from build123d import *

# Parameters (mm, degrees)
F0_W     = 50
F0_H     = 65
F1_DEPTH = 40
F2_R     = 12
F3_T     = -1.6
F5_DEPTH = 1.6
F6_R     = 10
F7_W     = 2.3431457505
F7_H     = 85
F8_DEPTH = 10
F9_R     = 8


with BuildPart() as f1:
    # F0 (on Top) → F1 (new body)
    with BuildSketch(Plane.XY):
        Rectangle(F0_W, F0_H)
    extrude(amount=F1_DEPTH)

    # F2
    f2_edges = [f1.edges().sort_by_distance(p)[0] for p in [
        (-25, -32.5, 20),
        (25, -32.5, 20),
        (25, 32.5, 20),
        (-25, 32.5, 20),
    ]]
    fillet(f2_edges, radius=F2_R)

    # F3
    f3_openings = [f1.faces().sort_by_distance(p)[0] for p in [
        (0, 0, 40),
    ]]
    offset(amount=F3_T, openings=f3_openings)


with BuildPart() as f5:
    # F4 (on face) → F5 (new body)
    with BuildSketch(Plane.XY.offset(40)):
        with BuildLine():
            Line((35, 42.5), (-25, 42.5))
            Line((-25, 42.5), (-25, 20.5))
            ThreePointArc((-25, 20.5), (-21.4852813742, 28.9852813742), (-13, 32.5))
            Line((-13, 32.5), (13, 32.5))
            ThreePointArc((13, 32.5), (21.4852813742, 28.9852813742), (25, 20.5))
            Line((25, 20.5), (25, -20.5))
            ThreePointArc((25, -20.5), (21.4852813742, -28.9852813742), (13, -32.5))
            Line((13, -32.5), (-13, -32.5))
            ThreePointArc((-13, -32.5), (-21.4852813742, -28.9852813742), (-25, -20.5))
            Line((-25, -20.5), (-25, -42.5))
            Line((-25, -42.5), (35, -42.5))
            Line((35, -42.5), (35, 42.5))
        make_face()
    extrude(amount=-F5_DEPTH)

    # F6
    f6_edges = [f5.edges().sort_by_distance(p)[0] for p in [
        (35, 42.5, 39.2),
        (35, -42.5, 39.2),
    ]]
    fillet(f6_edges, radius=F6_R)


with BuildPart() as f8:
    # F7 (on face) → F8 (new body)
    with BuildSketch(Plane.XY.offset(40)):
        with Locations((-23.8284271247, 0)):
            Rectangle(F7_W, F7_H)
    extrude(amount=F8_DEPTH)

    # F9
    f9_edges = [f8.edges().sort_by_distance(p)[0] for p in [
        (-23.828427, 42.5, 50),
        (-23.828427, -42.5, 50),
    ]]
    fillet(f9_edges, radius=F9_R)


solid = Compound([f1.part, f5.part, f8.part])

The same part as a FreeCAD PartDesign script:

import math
import FreeCAD as App
import Part
import Sketcher
Q = App.Units.Quantity


def edges_at(feature, points):
    """Names of the edges that pass closest to the given points."""
    edges = feature.Shape.Edges
    near = lambda p: min(range(len(edges)), key=lambda i: edges[i].distToShape(Part.Vertex(*p))[0])
    return sorted({f"Edge{near(p) + 1}" for p in points})


def faces_at(feature, points):
    """Names of the faces that lie closest to the given points."""
    faces = feature.Shape.Faces
    near = lambda p: min(range(len(faces)), key=lambda i: faces[i].distToShape(Part.Vertex(*p))[0])
    return sorted({f"Face{near(p) + 1}" for p in points})


def add_polygon(sketch, points):
    """Adds a closed chain of lines whose ends are joined by coincident constraints."""
    first, n = sketch.GeometryCount, len(points)
    for a, b in zip(points, points[1:] + points[:1]):
        sketch.addGeometry(Part.LineSegment(App.Vector(*a, 0), App.Vector(*b, 0)), False)
    for i in range(n):
        sketch.addConstraint(Sketcher.Constraint("Coincident", first + i, 2, first + (i + 1) % n, 1))

doc = App.newDocument("Part")
body = doc.addObject("PartDesign::Body", "Body")

# Sketch on XY plane
sketch1 = body.newObject("Sketcher::SketchObject", "Sketch")
sketch1.AttachmentSupport = (doc.getObject("XY_Plane"), [""])
sketch1.MapMode = "FlatFace"
add_polygon(sketch1, [(-25, 32), (-25, -32), (25, -32), (25, 32)])  # lines 0-3
sketch1.addConstraint(Sketcher.Constraint("Vertical", 0))
sketch1.addConstraint(Sketcher.Constraint("Horizontal", 1))
sketch1.addConstraint(Sketcher.Constraint("Vertical", 2))
sketch1.addConstraint(Sketcher.Constraint("Horizontal", 3))
sketch1.addConstraint(Sketcher.Constraint("Symmetric", 0, 2, 2, 2, -1, 1))
sketch1.addConstraint(Sketcher.Constraint("DistanceX", 1, 1, 1, 2, Q("50 mm")))
sketch1.addConstraint(Sketcher.Constraint("DistanceY", 0, 2, 0, 1, Q("65 mm")))
pad1 = body.newObject("PartDesign::Pad", "Pad")
pad1.Profile = sketch1
pad1.Length = 40
doc.recompute()

fillet = body.newObject("PartDesign::Fillet", "Fillet")
fillet.Base = (pad1, edges_at(pad1, [
    (-25, -32.5, 20),
    (25, -32.5, 20),
    (25, 32.5, 20),
    (-25, 32.5, 20),
]))
fillet.Radius = 12
doc.recompute()

thickness = body.newObject("PartDesign::Thickness", "Thickness")
thickness.Base = (fillet, faces_at(fillet, [(0, 0, 40)]))
thickness.Value = 1.6
thickness.Reversed = True
thickness.Join = "Arc"
body2 = doc.addObject("PartDesign::Body", "Body001")

# Sketch on XY plane
sketch2 = body2.newObject("Sketcher::SketchObject", "Sketch001")
sketch2.AttachmentSupport = (doc.getObject("XY_Plane001"), [""])
sketch2.MapMode = "FlatFace"
sketch2.AttachmentOffset = App.Placement(App.Vector(0, 0, 40), App.Rotation())
sketch2.addGeometry(Part.LineSegment(App.Vector(35, 42, 0), App.Vector(-25, 42, 0)), False)
sketch2.addGeometry(Part.LineSegment(App.Vector(-25, 42, 0), App.Vector(-25, 20, 0)), False)
sketch2.addGeometry(Part.ArcOfCircle(Part.Circle(App.Vector(-13, 20, 0), App.Vector(0, 0, 1), 12), math.radians(90), math.radians(180)), False)
sketch2.addGeometry(Part.LineSegment(App.Vector(-13, 32, 0), App.Vector(13, 32, 0)), False)
sketch2.addGeometry(Part.ArcOfCircle(Part.Circle(App.Vector(13, 20, 0), App.Vector(0, 0, 1), 12), math.radians(0), math.radians(90)), False)
sketch2.addGeometry(Part.LineSegment(App.Vector(25, 20, 0), App.Vector(25, -20, 0)), False)
sketch2.addGeometry(Part.ArcOfCircle(Part.Circle(App.Vector(13, -20, 0), App.Vector(0, 0, 1), 12), math.radians(-90), math.radians(0)), False)
sketch2.addGeometry(Part.LineSegment(App.Vector(13, -32, 0), App.Vector(-13, -32, 0)), False)
sketch2.addGeometry(Part.ArcOfCircle(Part.Circle(App.Vector(-13, -20, 0), App.Vector(0, 0, 1), 12), math.radians(180), math.radians(270)), False)
sketch2.addGeometry(Part.LineSegment(App.Vector(-25, -20, 0), App.Vector(-25, -42, 0)), False)
sketch2.addGeometry(Part.LineSegment(App.Vector(-25, -42, 0), App.Vector(35, -42, 0)), False)
sketch2.addGeometry(Part.LineSegment(App.Vector(35, -42, 0), App.Vector(35, 42, 0)), False)
sketch2.addConstraint(Sketcher.Constraint("Coincident", 0, 2, 1, 1))
sketch2.addConstraint(Sketcher.Constraint("Tangent", 1, 2, 2, 2))
sketch2.addConstraint(Sketcher.Constraint("Tangent", 2, 1, 3, 1))
sketch2.addConstraint(Sketcher.Constraint("Tangent", 3, 2, 4, 2))
sketch2.addConstraint(Sketcher.Constraint("Tangent", 4, 1, 5, 1))
sketch2.addConstraint(Sketcher.Constraint("Tangent", 5, 2, 6, 2))
sketch2.addConstraint(Sketcher.Constraint("Tangent", 6, 1, 7, 1))
sketch2.addConstraint(Sketcher.Constraint("Tangent", 7, 2, 8, 2))
sketch2.addConstraint(Sketcher.Constraint("Tangent", 8, 1, 9, 1))
sketch2.addConstraint(Sketcher.Constraint("Coincident", 9, 2, 10, 1))
sketch2.addConstraint(Sketcher.Constraint("Coincident", 10, 2, 11, 1))
sketch2.addConstraint(Sketcher.Constraint("Coincident", 11, 2, 0, 1))
sketch2.addConstraint(Sketcher.Constraint("Horizontal", 0))
sketch2.addConstraint(Sketcher.Constraint("Vertical", 1))
sketch2.addConstraint(Sketcher.Constraint("Horizontal", 3))
sketch2.addConstraint(Sketcher.Constraint("Vertical", 5))
sketch2.addConstraint(Sketcher.Constraint("Horizontal", 7))
sketch2.addConstraint(Sketcher.Constraint("Vertical", 9))
sketch2.addConstraint(Sketcher.Constraint("Horizontal", 10))
sketch2.addConstraint(Sketcher.Constraint("Vertical", 11))
sketch2.addConstraint(Sketcher.Constraint("Equal", 2, 4))
sketch2.addConstraint(Sketcher.Constraint("Equal", 4, 6))
sketch2.addConstraint(Sketcher.Constraint("Equal", 6, 8))
sketch2.addConstraint(Sketcher.Constraint("Symmetric", 2, 3, 6, 3, -1, 1))
sketch2.addConstraint(Sketcher.Constraint("Symmetric", 0, 2, 9, 2, -1))
sketch2.addConstraint(Sketcher.Constraint("Radius", 2, Q("12 mm")))
sketch2.addConstraint(Sketcher.Constraint("DistanceX", 0, 2, 0, 1, Q("60 mm")))
sketch2.addConstraint(Sketcher.Constraint("DistanceX", 3, 1, 3, 2, Q("26 mm")))
sketch2.addConstraint(Sketcher.Constraint("DistanceY", 1, 2, 1, 1, Q("22 mm")))
sketch2.addConstraint(Sketcher.Constraint("DistanceY", 5, 2, 5, 1, Q("41 mm")))
pad2 = body2.newObject("PartDesign::Pad", "Pad001")
pad2.Profile = sketch2
pad2.Length = 1.6
pad2.Reversed = True
doc.recompute()

fillet2 = body2.newObject("PartDesign::Fillet", "Fillet001")
fillet2.Base = (pad2, edges_at(pad2, [(35, 42.5, 39.2), (35, -42.5, 39.2)]))
fillet2.Radius = 10
body3 = doc.addObject("PartDesign::Body", "Body002")

# Sketch on XY plane
sketch3 = body3.newObject("Sketcher::SketchObject", "Sketch002")
sketch3.AttachmentSupport = (doc.getObject("XY_Plane002"), [""])
sketch3.MapMode = "FlatFace"
sketch3.AttachmentOffset = App.Placement(App.Vector(0, 0, 40), App.Rotation())
add_polygon(sketch3, [(-25, 42.5), (-25, -42.5), (-22.7, -42.5), (-22.7, 42.5)])  # lines 0-3
sketch3.addConstraint(Sketcher.Constraint("Vertical", 0))
sketch3.addConstraint(Sketcher.Constraint("Horizontal", 1))
sketch3.addConstraint(Sketcher.Constraint("Vertical", 2))
sketch3.addConstraint(Sketcher.Constraint("Horizontal", 3))
sketch3.addConstraint(Sketcher.Constraint("DistanceY", 0, 2, 0, 1, Q("85 mm")))
sketch3.addConstraint(Sketcher.Constraint("DistanceX", 0, 2, -1, 1, Q("25 mm")))
sketch3.addConstraint(Sketcher.Constraint("DistanceY", 0, 2, -1, 1, Q("42.5 mm")))
sketch3.addConstraint(Sketcher.Constraint("DistanceX", 1, 1, 1, 2, Q("2.343146 mm")))
pad3 = body3.newObject("PartDesign::Pad", "Pad002")
pad3.Profile = sketch3
pad3.Length = 10
doc.recompute()

fillet3 = body3.newObject("PartDesign::Fillet", "Fillet002")
fillet3.Base = (pad3, edges_at(pad3, [(-23.828, 42.5, 50), (-23.828, -42.5, 50)]))
fillet3.Radius = 8

doc.recompute()
